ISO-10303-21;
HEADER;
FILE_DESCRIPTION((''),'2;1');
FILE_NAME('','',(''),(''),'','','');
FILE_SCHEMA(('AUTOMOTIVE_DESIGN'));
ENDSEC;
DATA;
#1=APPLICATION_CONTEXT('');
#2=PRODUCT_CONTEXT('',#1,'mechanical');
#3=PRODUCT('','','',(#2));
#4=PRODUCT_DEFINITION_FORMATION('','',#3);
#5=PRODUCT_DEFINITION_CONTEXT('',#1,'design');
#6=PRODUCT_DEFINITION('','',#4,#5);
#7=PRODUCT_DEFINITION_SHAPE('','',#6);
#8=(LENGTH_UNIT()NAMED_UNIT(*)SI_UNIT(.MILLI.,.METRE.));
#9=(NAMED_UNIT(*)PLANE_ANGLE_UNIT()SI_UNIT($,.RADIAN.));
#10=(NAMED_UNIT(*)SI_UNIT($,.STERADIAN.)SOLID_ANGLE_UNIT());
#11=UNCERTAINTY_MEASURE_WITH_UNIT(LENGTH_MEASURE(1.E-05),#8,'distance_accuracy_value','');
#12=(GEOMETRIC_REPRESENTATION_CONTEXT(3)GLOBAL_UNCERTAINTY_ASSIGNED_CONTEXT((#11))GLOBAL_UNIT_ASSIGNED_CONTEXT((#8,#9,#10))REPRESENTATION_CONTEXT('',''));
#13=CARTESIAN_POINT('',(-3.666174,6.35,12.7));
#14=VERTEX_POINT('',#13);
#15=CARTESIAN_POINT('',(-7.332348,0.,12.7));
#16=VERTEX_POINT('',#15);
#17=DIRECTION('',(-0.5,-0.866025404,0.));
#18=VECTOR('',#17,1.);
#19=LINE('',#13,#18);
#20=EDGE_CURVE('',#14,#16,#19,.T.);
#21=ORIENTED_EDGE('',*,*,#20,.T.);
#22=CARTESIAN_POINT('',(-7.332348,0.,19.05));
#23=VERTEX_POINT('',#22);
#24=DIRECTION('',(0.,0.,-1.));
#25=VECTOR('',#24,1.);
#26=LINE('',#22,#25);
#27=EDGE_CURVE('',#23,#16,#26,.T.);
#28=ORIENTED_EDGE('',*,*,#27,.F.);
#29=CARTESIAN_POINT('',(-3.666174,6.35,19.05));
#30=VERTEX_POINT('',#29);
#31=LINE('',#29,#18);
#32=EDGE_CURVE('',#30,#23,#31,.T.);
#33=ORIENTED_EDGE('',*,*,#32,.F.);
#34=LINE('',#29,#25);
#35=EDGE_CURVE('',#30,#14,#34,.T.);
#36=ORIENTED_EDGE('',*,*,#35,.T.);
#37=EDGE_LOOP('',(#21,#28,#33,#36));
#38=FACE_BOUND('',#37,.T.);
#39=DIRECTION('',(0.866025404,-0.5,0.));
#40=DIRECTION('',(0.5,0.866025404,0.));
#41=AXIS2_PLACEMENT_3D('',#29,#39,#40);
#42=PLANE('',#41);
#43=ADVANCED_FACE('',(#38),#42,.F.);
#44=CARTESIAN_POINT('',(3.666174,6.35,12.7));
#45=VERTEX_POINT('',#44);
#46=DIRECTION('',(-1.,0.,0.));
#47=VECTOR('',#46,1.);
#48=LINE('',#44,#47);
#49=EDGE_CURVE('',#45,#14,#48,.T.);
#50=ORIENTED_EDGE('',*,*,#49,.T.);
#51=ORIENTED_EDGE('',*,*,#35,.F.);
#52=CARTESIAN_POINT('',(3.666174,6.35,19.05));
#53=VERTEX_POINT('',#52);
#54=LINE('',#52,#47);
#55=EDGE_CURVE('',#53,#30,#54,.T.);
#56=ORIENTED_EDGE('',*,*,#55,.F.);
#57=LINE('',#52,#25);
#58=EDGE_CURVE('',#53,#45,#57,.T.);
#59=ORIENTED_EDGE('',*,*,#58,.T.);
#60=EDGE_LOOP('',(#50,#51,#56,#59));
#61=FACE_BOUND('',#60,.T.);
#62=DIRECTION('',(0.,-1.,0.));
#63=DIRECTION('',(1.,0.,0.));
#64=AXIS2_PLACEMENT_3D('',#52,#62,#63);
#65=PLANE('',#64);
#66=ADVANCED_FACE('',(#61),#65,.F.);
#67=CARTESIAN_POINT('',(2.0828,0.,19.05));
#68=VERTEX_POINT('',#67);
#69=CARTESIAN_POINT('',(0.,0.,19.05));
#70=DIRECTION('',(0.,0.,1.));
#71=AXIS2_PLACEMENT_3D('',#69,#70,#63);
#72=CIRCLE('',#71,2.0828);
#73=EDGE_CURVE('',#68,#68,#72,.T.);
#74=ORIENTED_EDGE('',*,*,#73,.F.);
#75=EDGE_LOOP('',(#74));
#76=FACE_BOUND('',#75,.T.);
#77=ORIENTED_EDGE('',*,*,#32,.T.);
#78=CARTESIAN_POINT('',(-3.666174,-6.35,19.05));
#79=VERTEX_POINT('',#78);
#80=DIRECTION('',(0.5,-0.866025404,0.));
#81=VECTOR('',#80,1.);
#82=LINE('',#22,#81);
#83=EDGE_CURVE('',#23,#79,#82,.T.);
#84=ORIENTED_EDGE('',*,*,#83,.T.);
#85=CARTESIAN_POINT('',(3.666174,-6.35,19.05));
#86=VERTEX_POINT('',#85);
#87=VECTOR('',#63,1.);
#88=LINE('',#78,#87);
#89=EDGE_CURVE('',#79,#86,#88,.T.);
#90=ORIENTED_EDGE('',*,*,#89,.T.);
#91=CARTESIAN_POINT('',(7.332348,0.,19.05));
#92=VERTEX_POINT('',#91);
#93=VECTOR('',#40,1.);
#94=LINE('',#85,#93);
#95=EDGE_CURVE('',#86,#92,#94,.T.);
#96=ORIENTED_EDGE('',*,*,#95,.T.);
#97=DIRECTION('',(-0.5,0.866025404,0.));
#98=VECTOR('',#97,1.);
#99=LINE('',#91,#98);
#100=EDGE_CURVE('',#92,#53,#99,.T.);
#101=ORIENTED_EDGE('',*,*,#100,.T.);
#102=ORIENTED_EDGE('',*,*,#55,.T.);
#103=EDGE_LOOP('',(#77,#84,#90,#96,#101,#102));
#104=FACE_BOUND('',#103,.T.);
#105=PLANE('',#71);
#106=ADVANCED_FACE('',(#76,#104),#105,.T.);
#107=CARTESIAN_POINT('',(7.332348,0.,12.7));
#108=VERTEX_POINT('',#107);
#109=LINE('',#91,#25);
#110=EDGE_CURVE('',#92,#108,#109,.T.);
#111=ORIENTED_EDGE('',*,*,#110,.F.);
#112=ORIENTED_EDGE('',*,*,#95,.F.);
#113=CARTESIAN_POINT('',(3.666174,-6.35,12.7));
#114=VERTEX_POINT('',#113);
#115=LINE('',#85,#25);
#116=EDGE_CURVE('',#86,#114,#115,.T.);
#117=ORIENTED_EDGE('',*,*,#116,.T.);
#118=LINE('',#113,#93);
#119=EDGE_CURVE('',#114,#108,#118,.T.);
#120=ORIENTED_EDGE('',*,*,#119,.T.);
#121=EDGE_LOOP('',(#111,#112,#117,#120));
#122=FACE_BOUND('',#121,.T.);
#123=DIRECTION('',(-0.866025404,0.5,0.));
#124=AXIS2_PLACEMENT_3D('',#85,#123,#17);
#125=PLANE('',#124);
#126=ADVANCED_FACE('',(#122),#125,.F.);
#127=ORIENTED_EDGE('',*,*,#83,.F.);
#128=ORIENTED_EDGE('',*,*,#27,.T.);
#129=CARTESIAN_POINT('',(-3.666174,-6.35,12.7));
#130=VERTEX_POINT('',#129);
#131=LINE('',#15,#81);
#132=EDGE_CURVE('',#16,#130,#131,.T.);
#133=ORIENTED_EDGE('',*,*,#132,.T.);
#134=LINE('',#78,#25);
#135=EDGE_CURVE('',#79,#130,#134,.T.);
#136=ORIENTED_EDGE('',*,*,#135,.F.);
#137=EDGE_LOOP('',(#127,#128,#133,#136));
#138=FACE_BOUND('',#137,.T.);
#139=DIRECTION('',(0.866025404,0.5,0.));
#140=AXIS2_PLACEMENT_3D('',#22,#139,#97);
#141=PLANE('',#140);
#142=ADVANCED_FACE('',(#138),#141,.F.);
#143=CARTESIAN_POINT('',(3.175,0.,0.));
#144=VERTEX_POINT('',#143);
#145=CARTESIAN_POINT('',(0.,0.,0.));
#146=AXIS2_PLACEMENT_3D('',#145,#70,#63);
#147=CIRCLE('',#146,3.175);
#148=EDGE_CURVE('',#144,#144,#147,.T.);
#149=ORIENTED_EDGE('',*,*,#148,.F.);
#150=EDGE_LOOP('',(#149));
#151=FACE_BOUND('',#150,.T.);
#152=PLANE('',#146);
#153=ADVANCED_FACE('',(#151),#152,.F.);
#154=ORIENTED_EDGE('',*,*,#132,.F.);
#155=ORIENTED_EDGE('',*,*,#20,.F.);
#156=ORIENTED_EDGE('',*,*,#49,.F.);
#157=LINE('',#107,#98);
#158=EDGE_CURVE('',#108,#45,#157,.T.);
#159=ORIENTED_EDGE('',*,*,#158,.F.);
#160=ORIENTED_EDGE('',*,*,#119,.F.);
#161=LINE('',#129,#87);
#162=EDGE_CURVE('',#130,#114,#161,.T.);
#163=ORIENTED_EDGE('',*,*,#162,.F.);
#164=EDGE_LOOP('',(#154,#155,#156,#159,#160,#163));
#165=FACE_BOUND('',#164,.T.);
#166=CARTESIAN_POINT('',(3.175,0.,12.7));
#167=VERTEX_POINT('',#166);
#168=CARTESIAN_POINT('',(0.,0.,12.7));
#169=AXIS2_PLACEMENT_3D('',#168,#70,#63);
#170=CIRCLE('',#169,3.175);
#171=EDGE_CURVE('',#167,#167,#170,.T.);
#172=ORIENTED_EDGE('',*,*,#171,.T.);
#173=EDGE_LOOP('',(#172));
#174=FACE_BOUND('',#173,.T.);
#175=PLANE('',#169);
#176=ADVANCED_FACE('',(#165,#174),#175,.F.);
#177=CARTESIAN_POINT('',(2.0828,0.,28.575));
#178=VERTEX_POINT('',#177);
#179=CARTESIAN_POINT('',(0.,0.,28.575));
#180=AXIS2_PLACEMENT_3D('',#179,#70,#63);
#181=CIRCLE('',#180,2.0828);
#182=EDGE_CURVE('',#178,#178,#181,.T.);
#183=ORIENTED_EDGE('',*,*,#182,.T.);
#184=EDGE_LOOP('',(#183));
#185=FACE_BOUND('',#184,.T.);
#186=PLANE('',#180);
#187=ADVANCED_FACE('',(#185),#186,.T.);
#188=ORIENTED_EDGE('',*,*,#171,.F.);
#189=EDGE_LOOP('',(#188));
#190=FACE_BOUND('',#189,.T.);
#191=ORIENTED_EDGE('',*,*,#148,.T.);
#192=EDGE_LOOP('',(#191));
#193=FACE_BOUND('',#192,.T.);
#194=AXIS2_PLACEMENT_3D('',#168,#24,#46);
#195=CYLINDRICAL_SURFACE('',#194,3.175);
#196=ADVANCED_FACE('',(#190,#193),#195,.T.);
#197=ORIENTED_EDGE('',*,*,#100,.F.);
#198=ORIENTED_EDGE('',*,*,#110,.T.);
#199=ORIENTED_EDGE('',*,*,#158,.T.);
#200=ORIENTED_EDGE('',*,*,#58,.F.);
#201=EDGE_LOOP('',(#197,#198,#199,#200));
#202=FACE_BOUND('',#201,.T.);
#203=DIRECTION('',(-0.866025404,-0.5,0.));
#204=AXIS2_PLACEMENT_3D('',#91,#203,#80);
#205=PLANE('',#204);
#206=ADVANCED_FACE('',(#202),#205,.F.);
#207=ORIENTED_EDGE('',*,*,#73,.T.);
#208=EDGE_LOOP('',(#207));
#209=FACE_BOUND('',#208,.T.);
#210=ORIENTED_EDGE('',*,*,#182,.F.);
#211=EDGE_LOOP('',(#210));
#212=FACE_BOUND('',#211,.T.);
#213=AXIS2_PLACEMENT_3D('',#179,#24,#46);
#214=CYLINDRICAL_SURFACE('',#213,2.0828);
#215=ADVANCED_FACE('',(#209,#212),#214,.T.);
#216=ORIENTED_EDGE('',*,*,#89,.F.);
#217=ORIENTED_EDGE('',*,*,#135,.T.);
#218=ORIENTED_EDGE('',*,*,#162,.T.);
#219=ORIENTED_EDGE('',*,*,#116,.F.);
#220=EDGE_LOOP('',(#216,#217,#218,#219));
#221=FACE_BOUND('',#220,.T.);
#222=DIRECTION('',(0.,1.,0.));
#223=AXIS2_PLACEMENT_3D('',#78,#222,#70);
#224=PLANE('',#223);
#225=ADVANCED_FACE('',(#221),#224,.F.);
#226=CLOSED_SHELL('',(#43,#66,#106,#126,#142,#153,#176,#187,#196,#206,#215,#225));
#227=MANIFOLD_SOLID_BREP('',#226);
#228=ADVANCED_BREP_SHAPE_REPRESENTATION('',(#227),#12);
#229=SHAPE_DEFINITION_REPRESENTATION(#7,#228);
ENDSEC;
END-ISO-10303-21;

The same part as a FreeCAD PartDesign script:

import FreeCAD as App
import Part
import Sketcher

V = App.Vector
Q = App.Units.Quantity

doc = App.newDocument("Part")
body = doc.addObject("PartDesign::Body", "Body")

sketch1 = doc.addObject("Sketcher::SketchObject", "Sketch")
body.addObject(sketch1)
sketch1.AttachmentSupport = (doc.XY_Plane, [""])
sketch1.MapMode = "FlatFace"
sketch1.addGeometry(Part.Circle(V(0, 0, 0), V(0, 0, 1), 3.2), False)
sketch1.addConstraint([
    Sketcher.Constraint("Coincident", 0, 3, -1, 1),
    Sketcher.Constraint("Diameter", 0, Q("0.25 in")),
])
pad1 = doc.addObject("PartDesign::Pad", "Pad")
body.addObject(pad1)
pad1.Profile = sketch1
pad1.Length = Q("0.5 in")

sketch2 = doc.addObject("Sketcher::SketchObject", "Sketch001")
body.addObject(sketch2)
sketch2.AttachmentSupport = (doc.XY_Plane, [""])
sketch2.MapMode = "FlatFace"
sketch2.AttachmentOffset = App.Placement(V(0, 0, 0.5 * 25.4), App.Rotation())
sketch2.addGeometry([
    Part.LineSegment(V(4, -6, 0), V(7, 0, 0)),
    Part.LineSegment(V(7, 0, 0), V(4, 6, 0)),
    Part.LineSegment(V(4, 6, 0), V(-4, 6, 0)),
    Part.LineSegment(V(-4, 6, 0), V(-7, 0, 0)),
    Part.LineSegment(V(-7, 0, 0), V(-4, -6, 0)),
    Part.LineSegment(V(-4, -6, 0), V(4, -6, 0)),
], False)
sketch2.addConstraint([
    Sketcher.Constraint("Coincident", 0, 2, 1, 1),
    Sketcher.Constraint("Coincident", 1, 2, 2, 1),
    Sketcher.Constraint("Coincident", 2, 2, 3, 1),
    Sketcher.Constraint("Coincident", 3, 2, 4, 1),
    Sketcher.Constraint("Coincident", 4, 2, 5, 1),
    Sketcher.Constraint("Coincident", 5, 2, 0, 1),
    Sketcher.Constraint("Horizontal", 2),
    Sketcher.Constraint("Horizontal", 5),
    Sketcher.Constraint("Symmetric", 0, 2, 3, 2, -1, 1),
    Sketcher.Constraint("Symmetric", 1, 2, 4, 2, -1, 1),
    Sketcher.Constraint("PointOnObject", 0, 2, -1),
    Sketcher.Constraint("Parallel", 0, 3),
    Sketcher.Constraint("Vertical", 2, 2, 4, 2),
    Sketcher.Constraint("Angle", 0, Q("60 deg")),
    Sketcher.Constraint("DistanceY", 4, 2, 2, 2, Q("0.5 in")),
    Sketcher.Constraint("DistanceX", 2, 2, 2, 1, 7.332348),
])
pad2 = doc.addObject("PartDesign::Pad", "Pad001")
body.addObject(pad2)
pad2.Profile = sketch2
pad2.Length = Q("0.25 in")

sketch3 = doc.addObject("Sketcher::SketchObject", "Sketch002")
body.addObject(sketch3)
sketch3.AttachmentSupport = (doc.XY_Plane, [""])
sketch3.MapMode = "FlatFace"
sketch3.AttachmentOffset = App.Placement(V(0, 0, 0.75 * 25.4), App.Rotation())
sketch3.addGeometry(Part.Circle(V(0, 0, 0), V(0, 0, 1), 2.1), False)
sketch3.addConstraint([
    Sketcher.Constraint("Coincident", 0, 3, -1, 1),
    Sketcher.Constraint("Diameter", 0, Q("0.164 in")),
])
pad3 = doc.addObject("PartDesign::Pad", "Pad002")
body.addObject(pad3)
pad3.Profile = sketch3
pad3.Length = Q("0.375 in")

doc.recompute()
